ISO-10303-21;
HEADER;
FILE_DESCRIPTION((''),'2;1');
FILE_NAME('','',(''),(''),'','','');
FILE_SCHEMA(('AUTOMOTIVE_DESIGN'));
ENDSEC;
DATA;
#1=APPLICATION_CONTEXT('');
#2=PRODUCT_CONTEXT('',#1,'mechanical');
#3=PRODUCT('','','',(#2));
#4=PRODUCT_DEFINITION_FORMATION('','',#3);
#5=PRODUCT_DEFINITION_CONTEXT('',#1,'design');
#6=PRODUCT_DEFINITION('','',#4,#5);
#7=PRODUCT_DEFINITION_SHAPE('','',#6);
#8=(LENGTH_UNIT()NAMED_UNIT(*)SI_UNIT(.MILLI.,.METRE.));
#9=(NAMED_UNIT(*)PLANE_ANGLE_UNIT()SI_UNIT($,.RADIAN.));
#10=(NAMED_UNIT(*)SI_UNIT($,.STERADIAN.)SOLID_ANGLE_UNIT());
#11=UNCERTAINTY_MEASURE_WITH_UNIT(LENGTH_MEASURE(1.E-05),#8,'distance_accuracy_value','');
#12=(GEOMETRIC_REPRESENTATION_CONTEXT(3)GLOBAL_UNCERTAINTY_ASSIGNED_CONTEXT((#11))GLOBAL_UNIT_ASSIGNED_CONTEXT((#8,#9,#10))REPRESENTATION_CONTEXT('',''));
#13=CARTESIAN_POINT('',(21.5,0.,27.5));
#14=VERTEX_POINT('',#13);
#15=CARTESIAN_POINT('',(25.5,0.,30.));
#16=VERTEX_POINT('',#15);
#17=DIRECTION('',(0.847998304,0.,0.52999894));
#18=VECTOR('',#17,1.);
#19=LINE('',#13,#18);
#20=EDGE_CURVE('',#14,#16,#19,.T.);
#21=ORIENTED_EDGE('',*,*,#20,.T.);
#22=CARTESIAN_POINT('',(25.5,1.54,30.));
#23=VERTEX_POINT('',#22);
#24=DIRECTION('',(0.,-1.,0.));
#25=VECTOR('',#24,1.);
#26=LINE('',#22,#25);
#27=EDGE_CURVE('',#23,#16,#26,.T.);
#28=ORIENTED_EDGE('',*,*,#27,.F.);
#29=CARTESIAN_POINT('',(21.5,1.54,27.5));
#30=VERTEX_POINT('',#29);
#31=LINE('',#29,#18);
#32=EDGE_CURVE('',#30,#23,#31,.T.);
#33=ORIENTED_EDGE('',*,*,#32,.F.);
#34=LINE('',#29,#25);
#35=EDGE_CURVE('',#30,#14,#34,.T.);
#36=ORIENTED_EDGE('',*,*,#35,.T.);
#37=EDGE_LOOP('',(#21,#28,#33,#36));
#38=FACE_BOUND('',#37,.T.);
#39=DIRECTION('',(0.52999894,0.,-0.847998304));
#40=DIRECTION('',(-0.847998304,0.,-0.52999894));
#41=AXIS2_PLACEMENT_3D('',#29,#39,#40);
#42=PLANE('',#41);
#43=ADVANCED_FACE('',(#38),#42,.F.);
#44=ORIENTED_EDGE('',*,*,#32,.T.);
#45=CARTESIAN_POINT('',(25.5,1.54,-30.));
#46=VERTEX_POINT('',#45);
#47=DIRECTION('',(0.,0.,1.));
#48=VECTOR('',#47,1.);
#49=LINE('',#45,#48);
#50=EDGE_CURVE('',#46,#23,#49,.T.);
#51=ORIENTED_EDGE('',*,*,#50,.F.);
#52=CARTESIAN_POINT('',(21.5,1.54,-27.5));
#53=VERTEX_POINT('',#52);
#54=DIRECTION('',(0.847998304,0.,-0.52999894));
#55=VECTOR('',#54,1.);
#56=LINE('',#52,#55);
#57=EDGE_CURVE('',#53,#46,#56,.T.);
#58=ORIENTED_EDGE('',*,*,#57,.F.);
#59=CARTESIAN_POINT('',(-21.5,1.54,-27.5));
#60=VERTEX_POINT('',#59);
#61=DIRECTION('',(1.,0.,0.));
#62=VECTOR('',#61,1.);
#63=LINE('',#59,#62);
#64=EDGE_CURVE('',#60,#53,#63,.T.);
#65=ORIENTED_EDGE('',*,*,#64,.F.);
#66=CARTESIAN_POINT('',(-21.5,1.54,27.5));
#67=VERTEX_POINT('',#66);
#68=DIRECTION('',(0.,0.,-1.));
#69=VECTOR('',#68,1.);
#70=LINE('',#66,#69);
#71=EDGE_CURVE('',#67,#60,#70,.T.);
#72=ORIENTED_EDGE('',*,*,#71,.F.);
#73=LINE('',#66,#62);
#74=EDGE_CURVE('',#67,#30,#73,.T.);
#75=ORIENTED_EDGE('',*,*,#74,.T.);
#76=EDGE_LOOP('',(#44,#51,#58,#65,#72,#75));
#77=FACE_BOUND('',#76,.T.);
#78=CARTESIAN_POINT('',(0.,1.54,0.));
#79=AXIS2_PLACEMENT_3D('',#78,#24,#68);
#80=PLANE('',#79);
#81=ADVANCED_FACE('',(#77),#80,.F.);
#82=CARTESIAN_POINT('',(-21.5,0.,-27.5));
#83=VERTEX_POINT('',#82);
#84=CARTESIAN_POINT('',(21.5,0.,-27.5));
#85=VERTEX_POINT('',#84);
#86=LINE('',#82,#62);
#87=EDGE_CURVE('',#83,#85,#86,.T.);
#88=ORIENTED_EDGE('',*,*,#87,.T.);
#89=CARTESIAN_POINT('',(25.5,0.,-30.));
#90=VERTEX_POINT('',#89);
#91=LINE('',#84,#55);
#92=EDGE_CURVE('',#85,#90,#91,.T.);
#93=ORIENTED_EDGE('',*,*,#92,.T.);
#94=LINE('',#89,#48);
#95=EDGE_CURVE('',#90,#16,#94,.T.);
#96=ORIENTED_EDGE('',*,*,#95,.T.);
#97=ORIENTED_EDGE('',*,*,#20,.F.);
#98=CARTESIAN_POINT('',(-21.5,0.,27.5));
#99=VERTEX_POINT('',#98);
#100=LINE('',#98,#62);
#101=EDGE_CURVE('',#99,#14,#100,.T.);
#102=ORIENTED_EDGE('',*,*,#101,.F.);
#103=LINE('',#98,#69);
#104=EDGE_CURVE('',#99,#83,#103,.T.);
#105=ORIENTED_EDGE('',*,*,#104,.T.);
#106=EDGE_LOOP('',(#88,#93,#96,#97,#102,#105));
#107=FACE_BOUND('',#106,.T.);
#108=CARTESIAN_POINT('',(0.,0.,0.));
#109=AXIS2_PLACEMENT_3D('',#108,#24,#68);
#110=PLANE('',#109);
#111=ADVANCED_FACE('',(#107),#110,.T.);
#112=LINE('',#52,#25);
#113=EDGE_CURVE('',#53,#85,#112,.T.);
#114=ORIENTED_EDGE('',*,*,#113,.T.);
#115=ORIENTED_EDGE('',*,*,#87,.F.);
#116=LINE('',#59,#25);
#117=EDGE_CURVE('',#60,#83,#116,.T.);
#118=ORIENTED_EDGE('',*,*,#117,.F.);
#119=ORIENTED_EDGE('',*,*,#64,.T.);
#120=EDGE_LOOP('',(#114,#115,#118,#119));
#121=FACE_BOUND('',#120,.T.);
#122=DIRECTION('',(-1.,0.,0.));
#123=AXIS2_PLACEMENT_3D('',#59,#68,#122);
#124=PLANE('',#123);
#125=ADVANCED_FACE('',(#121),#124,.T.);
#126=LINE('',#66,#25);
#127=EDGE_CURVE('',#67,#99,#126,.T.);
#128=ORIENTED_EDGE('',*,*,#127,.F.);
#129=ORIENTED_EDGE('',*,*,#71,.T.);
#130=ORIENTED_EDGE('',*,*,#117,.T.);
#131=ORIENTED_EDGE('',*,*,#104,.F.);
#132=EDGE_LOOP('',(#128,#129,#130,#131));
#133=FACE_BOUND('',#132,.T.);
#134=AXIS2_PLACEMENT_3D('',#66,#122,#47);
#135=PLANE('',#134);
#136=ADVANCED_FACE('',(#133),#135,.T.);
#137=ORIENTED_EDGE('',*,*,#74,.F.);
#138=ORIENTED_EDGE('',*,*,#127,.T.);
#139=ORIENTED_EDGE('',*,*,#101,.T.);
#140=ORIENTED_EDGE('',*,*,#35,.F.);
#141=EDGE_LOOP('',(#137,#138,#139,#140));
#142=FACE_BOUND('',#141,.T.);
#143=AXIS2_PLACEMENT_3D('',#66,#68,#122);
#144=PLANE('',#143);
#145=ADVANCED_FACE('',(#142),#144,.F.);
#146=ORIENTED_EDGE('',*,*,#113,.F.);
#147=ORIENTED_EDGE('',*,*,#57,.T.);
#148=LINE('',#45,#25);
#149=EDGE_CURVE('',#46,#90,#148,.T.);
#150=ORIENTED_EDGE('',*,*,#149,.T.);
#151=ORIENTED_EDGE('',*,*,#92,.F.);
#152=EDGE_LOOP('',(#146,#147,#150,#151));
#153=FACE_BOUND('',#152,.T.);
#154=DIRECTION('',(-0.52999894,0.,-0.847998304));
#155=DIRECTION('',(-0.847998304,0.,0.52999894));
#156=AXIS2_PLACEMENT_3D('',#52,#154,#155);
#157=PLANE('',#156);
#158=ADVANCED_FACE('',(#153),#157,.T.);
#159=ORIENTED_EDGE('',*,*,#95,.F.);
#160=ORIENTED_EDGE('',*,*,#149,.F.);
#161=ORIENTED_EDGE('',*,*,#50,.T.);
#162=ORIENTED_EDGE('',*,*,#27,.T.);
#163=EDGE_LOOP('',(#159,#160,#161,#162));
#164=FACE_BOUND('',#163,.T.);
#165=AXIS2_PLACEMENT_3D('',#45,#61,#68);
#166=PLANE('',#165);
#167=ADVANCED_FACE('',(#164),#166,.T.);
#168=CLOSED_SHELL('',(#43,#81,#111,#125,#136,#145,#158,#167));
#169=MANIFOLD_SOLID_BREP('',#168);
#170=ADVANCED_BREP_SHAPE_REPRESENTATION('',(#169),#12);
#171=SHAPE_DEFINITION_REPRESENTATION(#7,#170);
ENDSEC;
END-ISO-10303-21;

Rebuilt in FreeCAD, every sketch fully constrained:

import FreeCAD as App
import Part
import Sketcher
from FreeCAD import Vector

doc = App.newDocument("Part")
body = doc.addObject("PartDesign::Body", "Body")

sketch1 = body.newObject("Sketcher::SketchObject", "Sketch")
sketch1.AttachmentSupport = (doc.getObject("XZ_Plane"), [""])
sketch1.MapMode = "FlatFace"
sketch1.addGeometry(Part.LineSegment(Vector(-21.5, 27.5, 0), Vector(21.5, 27.5, 0)), False)
sketch1.addGeometry(Part.LineSegment(Vector(21.5, 27.5, 0), Vector(25.5, 30, 0)), False)
sketch1.addGeometry(Part.LineSegment(Vector(25.5, 30, 0), Vector(25.5, -30, 0)), False)
sketch1.addGeometry(Part.LineSegment(Vector(25.5, -30, 0), Vector(21.5, -27.5, 0)), False)
sketch1.addGeometry(Part.LineSegment(Vector(21.5, -27.5, 0), Vector(-21.5, -27.5, 0)), False)
sketch1.addGeometry(Part.LineSegment(Vector(-21.5, -27.5, 0), Vector(-21.5, 27.5, 0)), False)
sketch1.addConstraint(Sketcher.Constraint("Coincident", 0, 2, 1, 1))
sketch1.addConstraint(Sketcher.Constraint("Coincident", 1, 2, 2, 1))
sketch1.addConstraint(Sketcher.Constraint("Coincident", 2, 2, 3, 1))
sketch1.addConstraint(Sketcher.Constraint("Coincident", 3, 2, 4, 1))
sketch1.addConstraint(Sketcher.Constraint("Coincident", 4, 2, 5, 1))
sketch1.addConstraint(Sketcher.Constraint("Coincident", 5, 2, 0, 1))
sketch1.addConstraint(Sketcher.Constraint("Horizontal", 0))
sketch1.addConstraint(Sketcher.Constraint("Vertical", 2))
sketch1.addConstraint(Sketcher.Constraint("Horizontal", 4))
sketch1.addConstraint(Sketcher.Constraint("Vertical", 5))
sketch1.addConstraint(Sketcher.Constraint("Symmetric", 0, 2, 4, 2, -1, 1))
sketch1.addConstraint(Sketcher.Constraint("Vertical", 0, 2, 3, 2))
sketch1.addConstraint(Sketcher.Constraint("Equal", 1, 3))
sketch1.addConstraint(Sketcher.Constraint("DistanceX", 0, 1, 0, 2, 43.0))
sketch1.addConstraint(Sketcher.Constraint("DistanceY", 2, 2, 2, 1, 60.0))
sketch1.addConstraint(Sketcher.Constraint("DistanceY", 5, 1, 5, 2, 55.0))
sketch1.addConstraint(Sketcher.Constraint("DistanceX", 0, 2, 1, 2, 4.0))
pad1 = body.newObject("PartDesign::Pad", "Pad")
pad1.Profile = sketch1
pad1.Length = 1.54
pad1.Reversed = True

doc.recompute()
